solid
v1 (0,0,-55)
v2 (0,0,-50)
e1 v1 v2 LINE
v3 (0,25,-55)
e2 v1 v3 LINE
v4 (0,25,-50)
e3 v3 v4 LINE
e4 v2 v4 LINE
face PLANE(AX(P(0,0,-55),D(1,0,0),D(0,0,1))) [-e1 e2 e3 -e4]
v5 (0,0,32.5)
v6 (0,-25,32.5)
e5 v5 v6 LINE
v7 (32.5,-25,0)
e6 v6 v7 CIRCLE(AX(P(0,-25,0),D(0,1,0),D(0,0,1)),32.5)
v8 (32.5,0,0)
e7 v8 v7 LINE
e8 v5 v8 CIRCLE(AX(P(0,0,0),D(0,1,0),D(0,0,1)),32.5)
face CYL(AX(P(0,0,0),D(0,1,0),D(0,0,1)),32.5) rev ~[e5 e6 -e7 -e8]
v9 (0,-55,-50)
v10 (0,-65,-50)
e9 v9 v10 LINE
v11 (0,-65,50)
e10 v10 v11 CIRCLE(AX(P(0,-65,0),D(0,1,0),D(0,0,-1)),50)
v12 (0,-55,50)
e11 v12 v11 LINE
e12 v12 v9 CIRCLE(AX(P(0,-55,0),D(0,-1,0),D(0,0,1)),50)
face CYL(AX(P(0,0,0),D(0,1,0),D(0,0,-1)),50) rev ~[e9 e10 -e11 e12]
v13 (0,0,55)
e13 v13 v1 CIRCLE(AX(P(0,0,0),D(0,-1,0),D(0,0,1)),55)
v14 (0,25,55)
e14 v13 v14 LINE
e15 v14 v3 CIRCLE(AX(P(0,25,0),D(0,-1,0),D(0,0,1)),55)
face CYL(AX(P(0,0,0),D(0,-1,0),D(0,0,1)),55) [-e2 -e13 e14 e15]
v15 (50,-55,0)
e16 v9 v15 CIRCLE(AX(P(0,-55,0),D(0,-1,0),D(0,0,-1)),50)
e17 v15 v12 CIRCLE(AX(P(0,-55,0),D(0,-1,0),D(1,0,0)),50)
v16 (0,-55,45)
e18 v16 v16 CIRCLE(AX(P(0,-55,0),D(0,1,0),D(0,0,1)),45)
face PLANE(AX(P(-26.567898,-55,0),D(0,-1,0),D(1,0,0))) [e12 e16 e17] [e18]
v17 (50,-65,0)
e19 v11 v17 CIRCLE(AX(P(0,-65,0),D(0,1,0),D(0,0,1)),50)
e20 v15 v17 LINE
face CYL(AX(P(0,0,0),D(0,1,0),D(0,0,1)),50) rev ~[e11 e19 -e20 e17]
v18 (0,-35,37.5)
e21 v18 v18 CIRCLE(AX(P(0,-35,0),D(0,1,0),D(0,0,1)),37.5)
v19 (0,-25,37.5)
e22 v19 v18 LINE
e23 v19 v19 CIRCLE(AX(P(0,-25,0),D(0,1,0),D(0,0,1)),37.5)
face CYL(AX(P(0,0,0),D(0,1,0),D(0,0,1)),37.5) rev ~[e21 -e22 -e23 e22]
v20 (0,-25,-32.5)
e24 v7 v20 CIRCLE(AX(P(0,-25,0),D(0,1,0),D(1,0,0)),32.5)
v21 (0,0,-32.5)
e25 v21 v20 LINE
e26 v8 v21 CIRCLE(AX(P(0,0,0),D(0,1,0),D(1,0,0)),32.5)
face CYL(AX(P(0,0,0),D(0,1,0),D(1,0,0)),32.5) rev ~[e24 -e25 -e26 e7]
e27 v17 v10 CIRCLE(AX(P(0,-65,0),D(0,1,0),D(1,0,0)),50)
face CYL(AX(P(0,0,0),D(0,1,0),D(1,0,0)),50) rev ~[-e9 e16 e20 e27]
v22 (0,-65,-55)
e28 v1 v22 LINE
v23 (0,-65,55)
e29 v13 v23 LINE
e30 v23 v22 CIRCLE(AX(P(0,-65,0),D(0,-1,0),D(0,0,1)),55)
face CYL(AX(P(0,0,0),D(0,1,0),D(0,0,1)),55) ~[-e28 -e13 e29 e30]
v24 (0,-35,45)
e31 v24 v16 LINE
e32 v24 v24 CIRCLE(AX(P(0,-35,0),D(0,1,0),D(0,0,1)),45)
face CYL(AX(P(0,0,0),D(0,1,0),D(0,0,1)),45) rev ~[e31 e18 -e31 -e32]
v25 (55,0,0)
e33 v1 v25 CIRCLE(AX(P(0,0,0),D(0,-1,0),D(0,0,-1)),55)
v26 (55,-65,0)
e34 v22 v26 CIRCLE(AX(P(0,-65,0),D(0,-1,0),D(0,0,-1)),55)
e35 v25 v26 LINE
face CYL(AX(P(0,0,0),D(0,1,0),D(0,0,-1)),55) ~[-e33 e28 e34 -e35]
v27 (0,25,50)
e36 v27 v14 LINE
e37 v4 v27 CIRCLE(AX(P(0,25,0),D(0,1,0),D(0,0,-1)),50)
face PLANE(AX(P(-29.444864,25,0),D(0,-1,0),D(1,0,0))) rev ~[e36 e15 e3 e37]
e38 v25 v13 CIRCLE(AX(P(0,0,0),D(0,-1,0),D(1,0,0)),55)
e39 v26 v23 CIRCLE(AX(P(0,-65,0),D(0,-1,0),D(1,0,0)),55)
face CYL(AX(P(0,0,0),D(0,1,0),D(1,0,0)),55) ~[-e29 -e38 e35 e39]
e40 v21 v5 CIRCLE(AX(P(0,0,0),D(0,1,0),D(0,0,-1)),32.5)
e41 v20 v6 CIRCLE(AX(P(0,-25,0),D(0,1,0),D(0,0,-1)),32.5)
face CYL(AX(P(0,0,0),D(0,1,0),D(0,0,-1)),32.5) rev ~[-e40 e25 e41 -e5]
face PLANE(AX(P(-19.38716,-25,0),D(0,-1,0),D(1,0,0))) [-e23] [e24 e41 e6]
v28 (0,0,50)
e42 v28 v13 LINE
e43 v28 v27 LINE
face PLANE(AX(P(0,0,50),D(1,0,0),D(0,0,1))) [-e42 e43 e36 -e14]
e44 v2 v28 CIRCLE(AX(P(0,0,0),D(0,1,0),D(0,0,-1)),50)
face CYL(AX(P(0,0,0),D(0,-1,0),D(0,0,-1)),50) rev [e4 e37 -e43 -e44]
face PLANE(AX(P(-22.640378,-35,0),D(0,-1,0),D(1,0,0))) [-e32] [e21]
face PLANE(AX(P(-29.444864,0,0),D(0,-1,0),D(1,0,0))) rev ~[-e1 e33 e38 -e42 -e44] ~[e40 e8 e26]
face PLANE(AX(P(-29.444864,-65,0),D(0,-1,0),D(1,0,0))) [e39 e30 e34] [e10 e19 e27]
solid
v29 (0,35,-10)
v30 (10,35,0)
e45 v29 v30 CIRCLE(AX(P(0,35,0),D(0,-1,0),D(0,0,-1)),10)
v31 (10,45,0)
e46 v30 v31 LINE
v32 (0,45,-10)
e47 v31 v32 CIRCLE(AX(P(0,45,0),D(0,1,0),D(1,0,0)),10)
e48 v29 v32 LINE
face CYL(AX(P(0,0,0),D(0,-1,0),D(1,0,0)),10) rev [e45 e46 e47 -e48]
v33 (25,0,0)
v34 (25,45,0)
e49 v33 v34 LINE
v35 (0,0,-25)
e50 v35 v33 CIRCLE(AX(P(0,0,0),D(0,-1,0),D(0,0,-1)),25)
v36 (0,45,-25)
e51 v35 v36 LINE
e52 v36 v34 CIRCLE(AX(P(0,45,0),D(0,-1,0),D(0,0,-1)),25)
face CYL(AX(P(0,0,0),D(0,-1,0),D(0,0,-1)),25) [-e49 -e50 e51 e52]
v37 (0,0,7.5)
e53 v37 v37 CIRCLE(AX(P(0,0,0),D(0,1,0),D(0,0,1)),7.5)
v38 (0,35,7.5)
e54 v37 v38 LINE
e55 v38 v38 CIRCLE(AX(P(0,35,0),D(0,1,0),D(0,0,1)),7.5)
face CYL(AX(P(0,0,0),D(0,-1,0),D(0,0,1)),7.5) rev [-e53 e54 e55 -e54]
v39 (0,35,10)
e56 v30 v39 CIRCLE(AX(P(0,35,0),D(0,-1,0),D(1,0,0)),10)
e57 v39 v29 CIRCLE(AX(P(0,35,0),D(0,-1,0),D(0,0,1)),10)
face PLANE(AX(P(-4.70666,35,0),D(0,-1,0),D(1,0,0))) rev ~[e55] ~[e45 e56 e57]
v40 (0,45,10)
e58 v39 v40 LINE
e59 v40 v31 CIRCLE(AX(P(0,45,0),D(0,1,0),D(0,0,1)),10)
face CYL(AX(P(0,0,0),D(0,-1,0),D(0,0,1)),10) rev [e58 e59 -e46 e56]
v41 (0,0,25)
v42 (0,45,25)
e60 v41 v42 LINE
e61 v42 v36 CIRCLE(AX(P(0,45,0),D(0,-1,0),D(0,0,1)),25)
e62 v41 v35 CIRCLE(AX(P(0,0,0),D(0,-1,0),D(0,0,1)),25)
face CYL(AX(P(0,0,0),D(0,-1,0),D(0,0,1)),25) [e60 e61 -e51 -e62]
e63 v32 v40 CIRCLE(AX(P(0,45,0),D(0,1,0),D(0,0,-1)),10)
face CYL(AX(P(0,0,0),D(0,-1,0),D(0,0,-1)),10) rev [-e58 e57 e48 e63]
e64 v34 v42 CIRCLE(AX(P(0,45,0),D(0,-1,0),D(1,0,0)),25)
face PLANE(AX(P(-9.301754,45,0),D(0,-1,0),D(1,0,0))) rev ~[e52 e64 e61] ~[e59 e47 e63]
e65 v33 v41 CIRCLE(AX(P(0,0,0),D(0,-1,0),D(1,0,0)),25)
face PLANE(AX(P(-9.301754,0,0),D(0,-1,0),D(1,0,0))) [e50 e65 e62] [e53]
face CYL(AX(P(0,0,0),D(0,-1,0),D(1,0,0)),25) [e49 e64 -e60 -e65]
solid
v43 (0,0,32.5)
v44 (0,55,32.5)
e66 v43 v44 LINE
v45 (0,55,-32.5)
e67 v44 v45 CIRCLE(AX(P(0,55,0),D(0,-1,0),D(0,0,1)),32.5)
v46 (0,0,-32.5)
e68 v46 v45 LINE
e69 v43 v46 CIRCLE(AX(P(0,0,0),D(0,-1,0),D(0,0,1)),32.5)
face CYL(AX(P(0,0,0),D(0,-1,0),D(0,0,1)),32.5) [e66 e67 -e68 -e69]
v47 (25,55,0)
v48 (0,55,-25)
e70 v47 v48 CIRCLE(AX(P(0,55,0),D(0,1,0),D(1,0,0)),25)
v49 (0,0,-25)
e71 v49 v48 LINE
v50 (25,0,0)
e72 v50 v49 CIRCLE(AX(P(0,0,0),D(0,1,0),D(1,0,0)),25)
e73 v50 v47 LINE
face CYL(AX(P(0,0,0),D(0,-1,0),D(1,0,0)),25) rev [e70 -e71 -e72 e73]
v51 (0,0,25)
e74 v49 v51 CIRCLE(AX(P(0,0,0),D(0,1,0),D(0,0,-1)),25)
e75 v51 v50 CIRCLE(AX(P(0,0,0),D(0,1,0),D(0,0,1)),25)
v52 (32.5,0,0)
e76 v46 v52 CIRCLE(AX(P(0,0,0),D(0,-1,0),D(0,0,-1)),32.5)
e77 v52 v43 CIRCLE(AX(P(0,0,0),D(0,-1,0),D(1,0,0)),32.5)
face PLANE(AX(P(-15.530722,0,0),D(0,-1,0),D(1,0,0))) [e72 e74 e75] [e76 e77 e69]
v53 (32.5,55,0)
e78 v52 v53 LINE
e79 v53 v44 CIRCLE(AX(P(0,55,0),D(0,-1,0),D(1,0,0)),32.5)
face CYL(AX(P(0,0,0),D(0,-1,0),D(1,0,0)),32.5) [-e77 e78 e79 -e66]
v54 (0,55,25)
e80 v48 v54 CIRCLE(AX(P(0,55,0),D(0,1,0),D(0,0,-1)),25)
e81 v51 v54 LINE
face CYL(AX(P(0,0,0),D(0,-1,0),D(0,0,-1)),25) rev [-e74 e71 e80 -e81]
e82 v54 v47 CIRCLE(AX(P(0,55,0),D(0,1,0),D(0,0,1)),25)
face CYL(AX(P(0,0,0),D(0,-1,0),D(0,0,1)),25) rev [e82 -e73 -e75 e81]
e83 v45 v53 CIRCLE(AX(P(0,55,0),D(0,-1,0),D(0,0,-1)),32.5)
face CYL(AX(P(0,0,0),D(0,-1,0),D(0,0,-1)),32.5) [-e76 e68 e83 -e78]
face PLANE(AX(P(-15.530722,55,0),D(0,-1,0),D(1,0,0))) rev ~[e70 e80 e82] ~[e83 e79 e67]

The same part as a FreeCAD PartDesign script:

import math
import FreeCAD as App
import Part
import Sketcher
from FreeCAD import Vector

doc = App.newDocument("Part")
body = doc.addObject("PartDesign::Body", "Body")

# Sketch on XZ plane
sketch1 = doc.addObject("Sketcher::SketchObject", "Sketch")
body.addObject(sketch1)
sketch1.AttachmentSupport = (doc.XZ_Plane, [""])
sketch1.MapMode = "FlatFace"
sketch1.addGeometry(Part.ArcOfCircle(Part.Circle(Vector(0, 0, 0), Vector(0, 0, 1), 10), math.radians(90), math.radians(270)), False)
sketch1.addGeometry(Part.ArcOfCircle(Part.Circle(Vector(0, 0, 0), Vector(0, 0, 1), 10), math.radians(-90), math.radians(0)), False)
sketch1.addGeometry(Part.ArcOfCircle(Part.Circle(Vector(0, 0, 0), Vector(0, 0, 1), 10), math.radians(0), math.radians(90)), False)
sketch1.addGeometry(Part.Circle(Vector(0, 0, 0), Vector(0, 0, 1), 8), False)
sketch1.addConstraint(Sketcher.Constraint("Tangent", 0, 2, 1, 1))
sketch1.addConstraint(Sketcher.Constraint("Tangent", 1, 2, 2, 1))
sketch1.addConstraint(Sketcher.Constraint("Tangent", 2, 2, 0, 1))
sketch1.addConstraint(Sketcher.Constraint("Coincident", 0, 3, -1, 1))
sketch1.addConstraint(Sketcher.Constraint("Coincident", 3, 3, -1, 1))
sketch1.addConstraint(Sketcher.Constraint("PointOnObject", 0, 2, -2))
sketch1.addConstraint(Sketcher.Constraint("PointOnObject", 1, 2, -1))
sketch1.addConstraint(Sketcher.Constraint("PointOnObject", 2, 2, -2))
sketch1.addConstraint(Sketcher.Constraint("Diameter", 3, 15.0))
sketch1.addConstraint(Sketcher.Constraint("Radius", 0, 10.0))
pad1 = doc.addObject("PartDesign::Pad", "Pad")
body.addObject(pad1)
pad1.Profile = sketch1
pad1.Length = 35
pad1.Reversed = True

# Sketch on XZ plane
sketch2 = doc.addObject("Sketcher::SketchObject", "Sketch001")
body.addObject(sketch2)
sketch2.AttachmentSupport = (doc.XZ_Plane, [""])
sketch2.MapMode = "FlatFace"
sketch2.addGeometry(Part.ArcOfCircle(Part.Circle(Vector(0, 0, 0), Vector(0, 0, 1), 25), math.radians(90), math.radians(270)), False)
sketch2.addGeometry(Part.ArcOfCircle(Part.Circle(Vector(0, 0, 0), Vector(0, 0, 1), 25), math.radians(-90), math.radians(0)), False)
sketch2.addGeometry(Part.ArcOfCircle(Part.Circle(Vector(0, 0, 0), Vector(0, 0, 1), 25), math.radians(0), math.radians(90)), False)
sketch2.addGeometry(Part.ArcOfCircle(Part.Circle(Vector(0, 0, 0), Vector(0, 0, 1), 10), math.radians(90), math.radians(270)), False)
sketch2.addGeometry(Part.ArcOfCircle(Part.Circle(Vector(0, 0, 0), Vector(0, 0, 1), 10), math.radians(0), math.radians(90)), False)
sketch2.addGeometry(Part.ArcOfCircle(Part.Circle(Vector(0, 0, 0), Vector(0, 0, 1), 10), math.radians(-90), math.radians(0)), False)
sketch2.addConstraint(Sketcher.Constraint("Tangent", 0, 2, 1, 1))
sketch2.addConstraint(Sketcher.Constraint("Tangent", 1, 2, 2, 1))
sketch2.addConstraint(Sketcher.Constraint("Tangent", 2, 2, 0, 1))
sketch2.addConstraint(Sketcher.Constraint("Tangent", 3, 1, 4, 2))
sketch2.addConstraint(Sketcher.Constraint("Tangent", 4, 1, 5, 2))
sketch2.addConstraint(Sketcher.Constraint("Tangent", 5, 1, 3, 2))
sketch2.addConstraint(Sketcher.Constraint("Coincident", 0, 3, -1, 1))
sketch2.addConstraint(Sketcher.Constraint("Coincident", 3, 3, -1, 1))
sketch2.addConstraint(Sketcher.Constraint("PointOnObject", 0, 2, -2))
sketch2.addConstraint(Sketcher.Constraint("PointOnObject", 1, 2, -1))
sketch2.addConstraint(Sketcher.Constraint("PointOnObject", 2, 2, -2))
sketch2.addConstraint(Sketcher.Constraint("PointOnObject", 3, 1, -2))
sketch2.addConstraint(Sketcher.Constraint("PointOnObject", 4, 1, -1))
sketch2.addConstraint(Sketcher.Constraint("PointOnObject", 5, 1, -2))
sketch2.addConstraint(Sketcher.Constraint("Radius", 0, 25.0))
sketch2.addConstraint(Sketcher.Constraint("Radius", 3, 10.0))
pad2 = doc.addObject("PartDesign::Pad", "Pad001")
body.addObject(pad2)
pad2.Profile = sketch2
pad2.Length = 45
pad2.Reversed = True
body2 = doc.addObject("PartDesign::Body", "Body001")

# Sketch on XZ plane
sketch3 = doc.addObject("Sketcher::SketchObject", "Sketch002")
body2.addObject(sketch3)
sketch3.AttachmentSupport = (doc.getObject("XZ_Plane001"), [""])
sketch3.MapMode = "FlatFace"
sketch3.addGeometry(Part.ArcOfCircle(Part.Circle(Vector(0, 0, 0), Vector(0, 0, 1), 32), math.radians(90), math.radians(270)), False)
sketch3.addGeometry(Part.ArcOfCircle(Part.Circle(Vector(0, 0, 0), Vector(0, 0, 1), 32), math.radians(-90), math.radians(0)), False)
sketch3.addGeometry(Part.ArcOfCircle(Part.Circle(Vector(0, 0, 0), Vector(0, 0, 1), 32), math.radians(0), math.radians(90)), False)
sketch3.addGeometry(Part.ArcOfCircle(Part.Circle(Vector(0, 0, 0), Vector(0, 0, 1), 25), math.radians(90), math.radians(270)), False)
sketch3.addGeometry(Part.ArcOfCircle(Part.Circle(Vector(0, 0, 0), Vector(0, 0, 1), 25), math.radians(0), math.radians(90)), False)
sketch3.addGeometry(Part.ArcOfCircle(Part.Circle(Vector(0, 0, 0), Vector(0, 0, 1), 25), math.radians(-90), math.radians(0)), False)
sketch3.addConstraint(Sketcher.Constraint("Tangent", 0, 2, 1, 1))
sketch3.addConstraint(Sketcher.Constraint("Tangent", 1, 2, 2, 1))
sketch3.addConstraint(Sketcher.Constraint("Tangent", 2, 2, 0, 1))
sketch3.addConstraint(Sketcher.Constraint("Tangent", 3, 1, 4, 2))
sketch3.addConstraint(Sketcher.Constraint("Tangent", 4, 1, 5, 2))
sketch3.addConstraint(Sketcher.Constraint("Tangent", 5, 1, 3, 2))
sketch3.addConstraint(Sketcher.Constraint("Coincident", 0, 3, -1, 1))
sketch3.addConstraint(Sketcher.Constraint("Coincident", 3, 3, -1, 1))
sketch3.addConstraint(Sketcher.Constraint("PointOnObject", 0, 2, -2))
sketch3.addConstraint(Sketcher.Constraint("PointOnObject", 1, 2, -1))
sketch3.addConstraint(Sketcher.Constraint("PointOnObject", 2, 2, -2))
sketch3.addConstraint(Sketcher.Constraint("PointOnObject", 3, 1, -2))
sketch3.addConstraint(Sketcher.Constraint("PointOnObject", 4, 1, -1))
sketch3.addConstraint(Sketcher.Constraint("PointOnObject", 5, 1, -2))
sketch3.addConstraint(Sketcher.Constraint("Radius", 3, 25.0))
sketch3.addConstraint(Sketcher.Constraint("Radius", 0, 32.5))
pad3 = doc.addObject("PartDesign::Pad", "Pad002")
body2.addObject(pad3)
pad3.Profile = sketch3
pad3.Length = 55
pad3.Reversed = True
body3 = doc.addObject("PartDesign::Body", "Body002")

# Sketch on XZ plane
sketch4 = doc.addObject("Sketcher::SketchObject", "Sketch003")
body3.addObject(sketch4)
sketch4.AttachmentSupport = (doc.getObject("XZ_Plane002"), [""])
sketch4.MapMode = "FlatFace"
sketch4.addGeometry(Part.Circle(Vector(0, 0, 0), Vector(0, 0, 1), 38), False)
sketch4.addGeometry(Part.ArcOfCircle(Part.Circle(Vector(0, 0, 0), Vector(0, 0, 1), 32), math.radians(90), math.radians(270)), False)
sketch4.addGeometry(Part.ArcOfCircle(Part.Circle(Vector(0, 0, 0), Vector(0, 0, 1), 32), math.radians(0), math.radians(90)), False)
sketch4.addGeometry(Part.ArcOfCircle(Part.Circle(Vector(0, 0, 0), Vector(0, 0, 1), 32), math.radians(-90), math.radians(0)), False)
sketch4.addConstraint(Sketcher.Constraint("Tangent", 1, 1, 2, 2))
sketch4.addConstraint(Sketcher.Constraint("Tangent", 2, 1, 3, 2))
sketch4.addConstraint(Sketcher.Constraint("Tangent", 3, 1, 1, 2))
sketch4.addConstraint(Sketcher.Constraint("Coincident", 0, 3, -1, 1))
sketch4.addConstraint(Sketcher.Constraint("Coincident", 1, 3, -1, 1))
sketch4.addConstraint(Sketcher.Constraint("PointOnObject", 1, 1, -2))
sketch4.addConstraint(Sketcher.Constraint("PointOnObject", 2, 1, -1))
sketch4.addConstraint(Sketcher.Constraint("PointOnObject", 3, 1, -2))
sketch4.addConstraint(Sketcher.Constraint("Diameter", 0, 75.0))
sketch4.addConstraint(Sketcher.Constraint("Radius", 1, 32.5))
pad4 = doc.addObject("PartDesign::Pad", "Pad003")
body3.addObject(pad4)
pad4.Profile = sketch4
pad4.Length = 25

# Sketch on XZ plane
sketch5 = doc.addObject("Sketcher::SketchObject", "Sketch004")
body3.addObject(sketch5)
sketch5.AttachmentSupport = (doc.getObject("XZ_Plane002"), [""])
sketch5.MapMode = "FlatFace"
sketch5.addGeometry(Part.Circle(Vector(0, 0, 0), Vector(0, 0, 1), 45), False)
sketch5.addGeometry(Part.Circle(Vector(0, 0, 0), Vector(0, 0, 1), 38), False)
sketch5.addConstraint(Sketcher.Constraint("Coincident", 0, 3, -1, 1))
sketch5.addConstraint(Sketcher.Constraint("Coincident", 1, 3, -1, 1))
sketch5.addConstraint(Sketcher.Constraint("Diameter", 0, 90.0))
sketch5.addConstraint(Sketcher.Constraint("Diameter", 1, 75.0))
pad5 = doc.addObject("PartDesign::Pad", "Pad004")
body3.addObject(pad5)
pad5.Profile = sketch5
pad5.Length = 35

# Sketch on XZ plane
sketch6 = doc.addObject("Sketcher::SketchObject", "Sketch005")
body3.addObject(sketch6)
sketch6.AttachmentSupport = (doc.getObject("XZ_Plane002"), [""])
sketch6.MapMode = "FlatFace"
sketch6.addGeometry(Part.ArcOfCircle(Part.Circle(Vector(0, 0, 0), Vector(0, 0, 1), 50), math.radians(90), math.radians(270)), False)
sketch6.addGeometry(Part.ArcOfCircle(Part.Circle(Vector(0, 0, 0), Vector(0, 0, 1), 50), math.radians(-90), math.radians(0)), False)
sketch6.addGeometry(Part.ArcOfCircle(Part.Circle(Vector(0, 0, 0), Vector(0, 0, 1), 50), math.radians(0), math.radians(90)), False)
sketch6.addGeometry(Part.Circle(Vector(0, 0, 0), Vector(0, 0, 1), 45), False)
sketch6.addConstraint(Sketcher.Constraint("Tangent", 0, 2, 1, 1))
sketch6.addConstraint(Sketcher.Constraint("Tangent", 1, 2, 2, 1))
sketch6.addConstraint(Sketcher.Constraint("Tangent", 2, 2, 0, 1))
sketch6.addConstraint(Sketcher.Constraint("Coincident", 0, 3, -1, 1))
sketch6.addConstraint(Sketcher.Constraint("Coincident", 3, 3, -1, 1))
sketch6.addConstraint(Sketcher.Constraint("PointOnObject", 0, 2, -2))
sketch6.addConstraint(Sketcher.Constraint("PointOnObject", 1, 2, -1))
sketch6.addConstraint(Sketcher.Constraint("PointOnObject", 2, 2, -2))
sketch6.addConstraint(Sketcher.Constraint("Diameter", 3, 90.0))
sketch6.addConstraint(Sketcher.Constraint("Radius", 0, 50.0))
pad6 = doc.addObject("PartDesign::Pad", "Pad005")
body3.addObject(pad6)
pad6.Profile = sketch6
pad6.Length = 55

# Sketch on XZ plane
sketch7 = doc.addObject("Sketcher::SketchObject", "Sketch006")
body3.addObject(sketch7)
sketch7.AttachmentSupport = (doc.getObject("XZ_Plane002"), [""])
sketch7.MapMode = "FlatFace"
sketch7.addGeometry(Part.ArcOfCircle(Part.Circle(Vector(0, 0, 0), Vector(0, 0, 1), 55), math.radians(90), math.radians(270)), False)
sketch7.addGeometry(Part.ArcOfCircle(Part.Circle(Vector(0, 0, 0), Vector(0, 0, 1), 55), math.radians(-90), math.radians(0)), False)
sketch7.addGeometry(Part.ArcOfCircle(Part.Circle(Vector(0, 0, 0), Vector(0, 0, 1), 55), math.radians(0), math.radians(90)), False)
sketch7.addGeometry(Part.ArcOfCircle(Part.Circle(Vector(0, 0, 0), Vector(0, 0, 1), 50), math.radians(90), math.radians(270)), False)
sketch7.addGeometry(Part.ArcOfCircle(Part.Circle(Vector(0, 0, 0), Vector(0, 0, 1), 50), math.radians(0), math.radians(90)), False)
sketch7.addGeometry(Part.ArcOfCircle(Part.Circle(Vector(0, 0, 0), Vector(0, 0, 1), 50), math.radians(-90), math.radians(0)), False)
sketch7.addConstraint(Sketcher.Constraint("Tangent", 0, 2, 1, 1))
sketch7.addConstraint(Sketcher.Constraint("Tangent", 1, 2, 2, 1))
sketch7.addConstraint(Sketcher.Constraint("Tangent", 2, 2, 0, 1))
sketch7.addConstraint(Sketcher.Constraint("Tangent", 3, 1, 4, 2))
sketch7.addConstraint(Sketcher.Constraint("Tangent", 4, 1, 5, 2))
sketch7.addConstraint(Sketcher.Constraint("Tangent", 5, 1, 3, 2))
sketch7.addConstraint(Sketcher.Constraint("Coincident", 0, 3, -1, 1))
sketch7.addConstraint(Sketcher.Constraint("Coincident", 3, 3, -1, 1))
sketch7.addConstraint(Sketcher.Constraint("PointOnObject", 0, 2, -2))
sketch7.addConstraint(Sketcher.Constraint("PointOnObject", 1, 2, -1))
sketch7.addConstraint(Sketcher.Constraint("PointOnObject", 2, 2, -2))
sketch7.addConstraint(Sketcher.Constraint("PointOnObject", 3, 1, -2))
sketch7.addConstraint(Sketcher.Constraint("PointOnObject", 4, 1, -1))
sketch7.addConstraint(Sketcher.Constraint("PointOnObject", 5, 1, -2))
sketch7.addConstraint(Sketcher.Constraint("Radius", 0, 55.0))
sketch7.addConstraint(Sketcher.Constraint("Radius", 3, 50.0))
pad7 = doc.addObject("PartDesign::Pad", "Pad006")
body3.addObject(pad7)
pad7.Profile = sketch7
pad7.Length = 65

# Sketch on XZ plane
sketch8 = doc.addObject("Sketcher::SketchObject", "Sketch007")
body3.addObject(sketch8)
sketch8.AttachmentSupport = (doc.getObject("XZ_Plane002"), [""])
sketch8.MapMode = "FlatFace"
sketch8.addGeometry(Part.LineSegment(Vector(0, 50, 0), Vector(0, 55, 0)), False)
sketch8.addGeometry(Part.ArcOfCircle(Part.Circle(Vector(0, 0, 0), Vector(0, 0, 1), 55), math.radians(90), math.radians(270)), False)
sketch8.addGeometry(Part.LineSegment(Vector(0, -55, 0), Vector(0, -50, 0)), False)
sketch8.addGeometry(Part.ArcOfCircle(Part.Circle(Vector(0, 0, 0), Vector(0, 0, 1), 50), math.radians(90), math.radians(270)), False)
sketch8.addConstraint(Sketcher.Constraint("Coincident", 0, 2, 1, 1))
sketch8.addConstraint(Sketcher.Constraint("Coincident", 1, 2, 2, 1))
sketch8.addConstraint(Sketcher.Constraint("Coincident", 2, 2, 3, 2))
sketch8.addConstraint(Sketcher.Constraint("Coincident", 3, 1, 0, 1))
sketch8.addConstraint(Sketcher.Constraint("Vertical", 0))
sketch8.addConstraint(Sketcher.Constraint("Vertical", 2))
sketch8.addConstraint(Sketcher.Constraint("Coincident", 1, 3, -1, 1))
sketch8.addConstraint(Sketcher.Constraint("Coincident", 3, 3, -1, 1))
sketch8.addConstraint(Sketcher.Constraint("PointOnObject", 0, 2, -2))
sketch8.addConstraint(Sketcher.Constraint("PointOnObject", 1, 2, -2))
sketch8.addConstraint(Sketcher.Constraint("Radius", 1, 55.0))
sketch8.addConstraint(Sketcher.Constraint("Radius", 3, 50.0))
pad8 = doc.addObject("PartDesign::Pad", "Pad007")
body3.addObject(pad8)
pad8.Profile = sketch8
pad8.Length = 25
pad8.Reversed = True

doc.recompute()
